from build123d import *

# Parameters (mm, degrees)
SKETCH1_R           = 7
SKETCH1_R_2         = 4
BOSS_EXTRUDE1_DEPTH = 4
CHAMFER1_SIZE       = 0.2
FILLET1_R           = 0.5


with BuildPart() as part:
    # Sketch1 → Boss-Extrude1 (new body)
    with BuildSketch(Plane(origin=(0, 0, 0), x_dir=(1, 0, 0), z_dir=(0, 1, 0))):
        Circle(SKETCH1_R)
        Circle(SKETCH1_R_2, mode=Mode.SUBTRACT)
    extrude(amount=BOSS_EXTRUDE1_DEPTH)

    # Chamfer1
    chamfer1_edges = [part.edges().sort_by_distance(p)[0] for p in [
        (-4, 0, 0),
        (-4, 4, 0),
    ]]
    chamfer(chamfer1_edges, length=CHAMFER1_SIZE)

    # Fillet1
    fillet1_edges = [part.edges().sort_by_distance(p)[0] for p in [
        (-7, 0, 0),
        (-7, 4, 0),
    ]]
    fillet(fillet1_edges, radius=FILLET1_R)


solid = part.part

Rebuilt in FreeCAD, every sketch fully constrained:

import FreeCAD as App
import Part
import Sketcher
from FreeCAD import Vector
Q = App.Units.Quantity


def edges_at(feature, points):
    """Names of the edges that pass closest to the given points."""
    edges = feature.Shape.Edges
    near = lambda p: min(range(len(edges)), key=lambda i: edges[i].distToShape(Part.Vertex(*p))[0])
    return sorted({f"Edge{near(p) + 1}" for p in points})

doc = App.newDocument("Part")
body = doc.addObject("PartDesign::Body", "Body")

# Sketch on XZ plane
sketch1 = doc.addObject("Sketcher::SketchObject", "Sketch")
body.addObject(sketch1)
sketch1.AttachmentSupport = (doc.XZ_Plane, [""])
sketch1.MapMode = "FlatFace"
sketch1.addGeometry(Part.Circle(Vector(0, 0, 0), Vector(0, 0, 1), 7), False)
sketch1.addGeometry(Part.Circle(Vector(0, 0, 0), Vector(0, 0, 1), 4), False)
sketch1.addConstraint(Sketcher.Constraint("Coincident", 0, 3, -1, 1))
sketch1.addConstraint(Sketcher.Constraint("Coincident", 1, 3, -1, 1))
sketch1.addConstraint(Sketcher.Constraint("Diameter", 0, Q("14 mm")))
sketch1.addConstraint(Sketcher.Constraint("Diameter", 1, Q("8 mm")))
pad1 = doc.addObject("PartDesign::Pad", "Pad")
body.addObject(pad1)
pad1.Profile = sketch1
pad1.Length = 4
pad1.Reversed = True
doc.recompute()

chamfer = doc.addObject("PartDesign::Chamfer", "Chamfer")
body.addObject(chamfer)
chamfer.Base = (pad1, edges_at(pad1, [(-4, 0, 0), (-4, 4, 0)]))
chamfer.Size = 0.2
doc.recompute()

fillet = doc.addObject("PartDesign::Fillet", "Fillet")
body.addObject(fillet)
fillet.Base = (chamfer, edges_at(chamfer, [(-7, 0, 0), (-7, 4, 0)]))
fillet.Radius = 0.5

doc.recompute()
